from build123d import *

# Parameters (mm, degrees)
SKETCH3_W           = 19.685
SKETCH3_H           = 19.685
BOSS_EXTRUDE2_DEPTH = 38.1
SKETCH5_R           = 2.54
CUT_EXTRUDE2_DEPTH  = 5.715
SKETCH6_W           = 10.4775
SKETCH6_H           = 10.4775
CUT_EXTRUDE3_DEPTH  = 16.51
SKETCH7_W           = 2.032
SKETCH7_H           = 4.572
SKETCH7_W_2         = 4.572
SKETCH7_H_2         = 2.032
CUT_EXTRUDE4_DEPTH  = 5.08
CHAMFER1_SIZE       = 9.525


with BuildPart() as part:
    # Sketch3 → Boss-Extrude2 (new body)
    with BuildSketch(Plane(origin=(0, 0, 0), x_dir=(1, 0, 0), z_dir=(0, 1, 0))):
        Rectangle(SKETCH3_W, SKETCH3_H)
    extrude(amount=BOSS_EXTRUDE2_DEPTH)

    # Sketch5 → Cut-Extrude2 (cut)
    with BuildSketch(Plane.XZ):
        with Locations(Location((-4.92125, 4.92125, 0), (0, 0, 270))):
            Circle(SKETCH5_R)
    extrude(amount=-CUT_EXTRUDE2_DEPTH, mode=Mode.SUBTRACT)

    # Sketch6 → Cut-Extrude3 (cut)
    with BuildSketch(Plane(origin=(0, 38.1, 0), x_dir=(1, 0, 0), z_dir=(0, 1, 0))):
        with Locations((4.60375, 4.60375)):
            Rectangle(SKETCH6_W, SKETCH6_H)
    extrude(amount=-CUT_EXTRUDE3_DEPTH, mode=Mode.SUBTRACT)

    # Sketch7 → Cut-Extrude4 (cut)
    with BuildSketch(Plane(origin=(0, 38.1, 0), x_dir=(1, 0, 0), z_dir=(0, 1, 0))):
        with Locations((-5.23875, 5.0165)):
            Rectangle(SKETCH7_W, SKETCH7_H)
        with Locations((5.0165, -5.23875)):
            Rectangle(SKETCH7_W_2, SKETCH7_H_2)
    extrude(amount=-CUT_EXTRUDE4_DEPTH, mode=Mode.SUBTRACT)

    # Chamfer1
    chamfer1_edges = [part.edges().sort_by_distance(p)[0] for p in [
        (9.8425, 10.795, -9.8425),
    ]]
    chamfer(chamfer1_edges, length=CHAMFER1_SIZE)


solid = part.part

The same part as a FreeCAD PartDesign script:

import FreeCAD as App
import Part
import Sketcher

V = App.Vector
Q = App.Units.Quantity


def edges_at(feature, points):
    """Names of the edges that pass closest to the given points."""
    edges = feature.Shape.Edges
    near = lambda p: min(range(len(edges)), key=lambda i: edges[i].distToShape(Part.Vertex(*p))[0])
    return sorted({f"Edge{near(p) + 1}" for p in points})

doc = App.newDocument("Part")
body = doc.addObject("PartDesign::Body", "Body")

sketch1 = body.newObject("Sketcher::SketchObject", "Sketch")
sketch1.AttachmentSupport = (doc.getObject("XZ_Plane"), [""])
sketch1.MapMode = "FlatFace"
sketch1.addGeometry([
    Part.LineSegment(V(-10, -10, 0), V(-10, 10, 0)),
    Part.LineSegment(V(-10, 10, 0), V(10, 10, 0)),
    Part.LineSegment(V(10, 10, 0), V(10, -10, 0)),
    Part.LineSegment(V(10, -10, 0), V(-10, -10, 0)),
], False)
sketch1.addConstraint([
    Sketcher.Constraint("Coincident", 0, 2, 1, 1),
    Sketcher.Constraint("Coincident", 1, 2, 2, 1),
    Sketcher.Constraint("Coincident", 2, 2, 3, 1),
    Sketcher.Constraint("Coincident", 3, 2, 0, 1),
    Sketcher.Constraint("Vertical", 0),
    Sketcher.Constraint("Horizontal", 1),
    Sketcher.Constraint("Vertical", 2),
    Sketcher.Constraint("Horizontal", 3),
    Sketcher.Constraint("Symmetric", 0, 2, 2, 2, -1, 1),
    Sketcher.Constraint("Equal", 3, 0),
    Sketcher.Constraint("DistanceX", 1, 1, 1, 2, Q("0.775 in")),
])
pad1 = body.newObject("PartDesign::Pad", "Pad")
pad1.Profile = sketch1
pad1.Length = Q("1.5 in")
pad1.Reversed = True

sketch2 = body.newObject("Sketcher::SketchObject", "Sketch001")
sketch2.AttachmentSupport = (doc.getObject("XZ_Plane"), [""])
sketch2.MapMode = "FlatFace"
sketch2.addGeometry(Part.Circle(V(-4.9, 4.9, 0), V(0, 0, 1), 2.5), False)
sketch2.addConstraint([
    Sketcher.Constraint("Diameter", 0, Q("0.2 in")),
    Sketcher.Constraint("DistanceX", 0, 3, -1, 1, Q("4.92125 mm")),
    Sketcher.Constraint("DistanceY", -1, 1, 0, 3, Q("4.92125 mm")),
])
pocket1 = body.newObject("PartDesign::Pocket", "Pocket")
pocket1.Profile = sketch2
pocket1.Length = Q("0.225 in")

sketch3 = body.newObject("Sketcher::SketchObject", "Sketch002")
sketch3.AttachmentSupport = (doc.getObject("XZ_Plane"), [""])
sketch3.MapMode = "FlatFace"
sketch3.AttachmentOffset = App.Placement(V(0, 0, -1.5 * 25.4), App.Rotation())
sketch3.addGeometry([
    Part.LineSegment(V(-1, -10, 0), V(-1, 1, 0)),
    Part.LineSegment(V(-1, 1, 0), V(10, 1, 0)),
    Part.LineSegment(V(10, 1, 0), V(10, -10, 0)),
    Part.LineSegment(V(10, -10, 0), V(-1, -10, 0)),
], False)
sketch3.addConstraint([
    Sketcher.Constraint("Coincident", 0, 2, 1, 1),
    Sketcher.Constraint("Coincident", 1, 2, 2, 1),
    Sketcher.Constraint("Coincident", 2, 2, 3, 1),
    Sketcher.Constraint("Coincident", 3, 2, 0, 1),
    Sketcher.Constraint("Vertical", 0),
    Sketcher.Constraint("Horizontal", 1),
    Sketcher.Constraint("Vertical", 2),
    Sketcher.Constraint("Horizontal", 3),
    Sketcher.Constraint("Equal", 3, 0),
    Sketcher.Constraint("DistanceX", 1, 1, 1, 2, Q("0.4125 in")),
    Sketcher.Constraint("DistanceX", 0, 2, -1, 1, Q("0.025 in")),
    Sketcher.Constraint("DistanceY", -1, 1, 0, 2, Q("0.025 in")),
])
pocket2 = body.newObject("PartDesign::Pocket", "Pocket001")
pocket2.Profile = sketch3
pocket2.Length = Q("0.65 in")
pocket2.Reversed = True

sketch4 = body.newObject("Sketcher::SketchObject", "Sketch003")
sketch4.AttachmentSupport = (doc.getObject("XZ_Plane"), [""])
sketch4.MapMode = "FlatFace"
sketch4.AttachmentOffset = App.Placement(V(0, 0, -1.5 * 25.4), App.Rotation())
sketch4.addGeometry([
    Part.LineSegment(V(-6.3, -7.3, 0), V(-6.3, -2.7, 0)),
    Part.LineSegment(V(-6.3, -2.7, 0), V(-4.2, -2.7, 0)),
    Part.LineSegment(V(-4.2, -2.7, 0), V(-4.2, -7.3, 0)),
    Part.LineSegment(V(-4.2, -7.3, 0), V(-6.3, -7.3, 0)),
    Part.LineSegment(V(2.7, 4.2, 0), V(2.7, 6.3, 0)),
    Part.LineSegment(V(2.7, 6.3, 0), V(7.3, 6.3, 0)),
    Part.LineSegment(V(7.3, 6.3, 0), V(7.3, 4.2, 0)),
    Part.LineSegment(V(7.3, 4.2, 0), V(2.7, 4.2, 0)),
], False)
sketch4.addConstraint([
    Sketcher.Constraint("Coincident", 0, 2, 1, 1),
    Sketcher.Constraint("Coincident", 1, 2, 2, 1),
    Sketcher.Constraint("Coincident", 2, 2, 3, 1),
    Sketcher.Constraint("Coincident", 3, 2, 0, 1),
    Sketcher.Constraint("Coincident", 4, 2, 5, 1),
    Sketcher.Constraint("Coincident", 5, 2, 6, 1),
    Sketcher.Constraint("Coincident", 6, 2, 7, 1),
    Sketcher.Constraint("Coincident", 7, 2, 4, 1),
    Sketcher.Constraint("Vertical", 0),
    Sketcher.Constraint("Horizontal", 1),
    Sketcher.Constraint("Vertical", 2),
    Sketcher.Constraint("Horizontal", 3),
    Sketcher.Constraint("Vertical", 4),
    Sketcher.Constraint("Horizontal", 5),
    Sketcher.Constraint("Vertical", 6),
    Sketcher.Constraint("Horizontal", 7),
    Sketcher.Constraint("Equal", 7, 0),
    Sketcher.Constraint("Equal", 3, 4),
    Sketcher.Constraint("DistanceX", 1, 1, 1, 2, Q("0.08 in")),
    Sketcher.Constraint("DistanceX", 5, 1, 5, 2, Q("0.18 in")),
    Sketcher.Constraint("DistanceY", 0, 2, -1, 1, Q("0.1075 in")),
    Sketcher.Constraint("DistanceX", -1, 1, 4, 2, Q("0.1075 in")),
    Sketcher.Constraint("DistanceX", 0, 2, -1, 1, Q("6.25475 mm")),
    Sketcher.Constraint("DistanceY", -1, 1, 4, 2, Q("6.25475 mm")),
])
pocket3 = body.newObject("PartDesign::Pocket", "Pocket002")
pocket3.Profile = sketch4
pocket3.Length = Q("0.2 in")
pocket3.Reversed = True
doc.recompute()

chamfer = body.newObject("PartDesign::Chamfer", "Chamfer")
chamfer.Base = (pocket3, edges_at(pocket3, [(9.842, 10.795, -9.842)]))
chamfer.Size = Q("0.375 in")

doc.recompute()
